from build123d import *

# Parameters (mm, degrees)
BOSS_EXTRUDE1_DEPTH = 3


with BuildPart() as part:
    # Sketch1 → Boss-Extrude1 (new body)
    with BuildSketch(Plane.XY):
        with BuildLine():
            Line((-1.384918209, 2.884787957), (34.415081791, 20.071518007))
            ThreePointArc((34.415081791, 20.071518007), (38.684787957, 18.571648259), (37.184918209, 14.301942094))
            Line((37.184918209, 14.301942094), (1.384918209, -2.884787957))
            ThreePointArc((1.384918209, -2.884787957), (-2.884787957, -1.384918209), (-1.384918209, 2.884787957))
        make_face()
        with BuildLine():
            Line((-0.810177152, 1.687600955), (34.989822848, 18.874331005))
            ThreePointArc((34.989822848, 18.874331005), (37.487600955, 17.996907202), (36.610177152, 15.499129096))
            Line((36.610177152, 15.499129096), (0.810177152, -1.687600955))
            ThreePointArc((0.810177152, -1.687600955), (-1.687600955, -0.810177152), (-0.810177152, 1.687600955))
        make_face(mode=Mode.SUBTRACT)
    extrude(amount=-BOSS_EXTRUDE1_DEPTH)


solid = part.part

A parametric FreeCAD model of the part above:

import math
import FreeCAD as App
import Part
import Sketcher
from FreeCAD import Vector
Q = App.Units.Quantity

doc = App.newDocument("Part")
body = doc.addObject("PartDesign::Body", "Body")

sketch1 = doc.addObject("Sketcher::SketchObject", "Sketch")
body.addObject(sketch1)
sketch1.AttachmentSupport = (doc.XY_Plane, [""])
sketch1.MapMode = "FlatFace"
sketch1.addGeometry([
    Part.LineSegment(Vector(34.4, 20.1, 0), Vector(-1.4, 2.9, 0)),
    Part.ArcOfCircle(Part.Circle(Vector(0, 0, 0), Vector(0, 0, 1), 3.2), math.radians(116), math.radians(296)),
    Part.LineSegment(Vector(1.4, -2.9, 0), Vector(37.2, 14.3, 0)),
    Part.ArcOfCircle(Part.Circle(Vector(35.8, 17.2, 0), Vector(0, 0, 1), 3.2), math.radians(-64), math.radians(116)),
    Part.LineSegment(Vector(-0.8, 1.7, 0), Vector(35, 18.9, 0)),
    Part.ArcOfCircle(Part.Circle(Vector(35.8, 17.2, 0), Vector(0, 0, 1), 1.9), math.radians(-64), math.radians(116)),
    Part.LineSegment(Vector(36.6, 15.5, 0), Vector(0.8, -1.7, 0)),
    Part.ArcOfCircle(Part.Circle(Vector(0, 0, 0), Vector(0, 0, 1), 1.9), math.radians(116), math.radians(296)),
], False)
sketch1.addConstraint([
    Sketcher.Constraint("Tangent", 0, 2, 1, 1),
    Sketcher.Constraint("Tangent", 1, 2, 2, 1),
    Sketcher.Constraint("Tangent", 2, 2, 3, 1),
    Sketcher.Constraint("Tangent", 3, 2, 0, 1),
    Sketcher.Constraint("Tangent", 4, 2, 5, 2),
    Sketcher.Constraint("Tangent", 5, 1, 6, 1),
    Sketcher.Constraint("Tangent", 6, 2, 7, 2),
    Sketcher.Constraint("Tangent", 7, 1, 4, 1),
    Sketcher.Constraint("Coincident", 1, 3, -1, 1),
    Sketcher.Constraint("Coincident", 7, 3, -1, 1),
    Sketcher.Constraint("Coincident", 5, 3, 3, 3),
    Sketcher.Constraint("Equal", 1, 3),
    Sketcher.Constraint("Equal", 5, 7),
    Sketcher.Constraint("Radius", 1, Q("3.2 mm")),
    Sketcher.Constraint("Radius", 5, Q("1.872 mm")),
    Sketcher.Constraint("DistanceX", -1, 1, 3, 3, Q("35.8 mm")),
    Sketcher.Constraint("DistanceY", 6, 2, -1, 1, Q("1.687601 mm")),
])
pad1 = doc.addObject("PartDesign::Pad", "Pad")
body.addObject(pad1)
pad1.Profile = sketch1
pad1.Length = 3
pad1.Reversed = True

doc.recompute()
